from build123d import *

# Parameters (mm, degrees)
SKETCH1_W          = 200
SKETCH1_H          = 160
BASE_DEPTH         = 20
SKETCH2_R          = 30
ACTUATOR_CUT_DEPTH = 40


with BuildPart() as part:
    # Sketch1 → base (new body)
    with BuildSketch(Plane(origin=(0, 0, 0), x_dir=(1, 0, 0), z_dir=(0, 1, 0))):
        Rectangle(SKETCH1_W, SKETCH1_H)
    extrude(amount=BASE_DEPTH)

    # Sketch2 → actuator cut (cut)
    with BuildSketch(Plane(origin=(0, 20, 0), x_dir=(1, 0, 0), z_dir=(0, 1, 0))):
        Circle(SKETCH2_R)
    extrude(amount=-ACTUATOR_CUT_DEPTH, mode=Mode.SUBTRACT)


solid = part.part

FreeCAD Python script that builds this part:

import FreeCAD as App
import Part
import Sketcher

V = App.Vector
Q = App.Units.Quantity


def add_polygon(sketch, points):
    """Adds a closed chain of lines whose ends are joined by coincident constraints."""
    first, n = sketch.GeometryCount, len(points)
    for a, b in zip(points, points[1:] + points[:1]):
        sketch.addGeometry(Part.LineSegment(App.Vector(*a, 0), App.Vector(*b, 0)), False)
    for i in range(n):
        sketch.addConstraint(Sketcher.Constraint("Coincident", first + i, 2, first + (i + 1) % n, 1))

doc = App.newDocument("Part")
params = doc.addObject("Spreadsheet::Sheet", "Params")
for row, (alias, value) in enumerate([
    ("sketch1_width", "200 mm"),
    ("sketch1_height", "160 mm"),
    ("pad1_length", "20 mm"),
    ("sketch2_diameter", "60 mm"),
    ("pocket1_length", "40 mm"),
], start=1):
    params.set(f"A{row}", alias)
    params.set(f"B{row}", "=" + value)
    params.setAlias(f"B{row}", alias)

body = doc.addObject("PartDesign::Body", "Body")

sketch1 = doc.addObject("Sketcher::SketchObject", "Sketch")
body.addObject(sketch1)
sketch1.AttachmentSupport = (doc.XZ_Plane, [""])
sketch1.MapMode = "FlatFace"
add_polygon(sketch1, [(-100, -80), (-100, 80), (100, 80), (100, -80)])
sketch1.addConstraint(Sketcher.Constraint("Vertical", 0))
sketch1.addConstraint(Sketcher.Constraint("Horizontal", 1))
sketch1.addConstraint(Sketcher.Constraint("Vertical", 2))
sketch1.addConstraint(Sketcher.Constraint("Horizontal", 3))
sketch1.addConstraint(Sketcher.Constraint("Symmetric", 0, 2, 2, 2, -1, 1))
sketch1.addConstraint(Sketcher.Constraint("DistanceX", 1, 1, 1, 2, Q("200 mm")))
sketch1.addConstraint(Sketcher.Constraint("DistanceY", 0, 1, 0, 2, Q("160 mm")))
sketch1.setExpression("Constraints[9]", "Params.sketch1_width")
sketch1.setExpression("Constraints[10]", "Params.sketch1_height")
pad1 = doc.addObject("PartDesign::Pad", "Pad")
body.addObject(pad1)
pad1.Profile = sketch1
pad1.setExpression("Length", "Params.pad1_length")
pad1.Reversed = True

sketch2 = doc.addObject("Sketcher::SketchObject", "Sketch001")
body.addObject(sketch2)
sketch2.AttachmentSupport = (doc.XZ_Plane, [""])
sketch2.MapMode = "FlatFace"
sketch2.AttachmentOffset = App.Placement(V(0, 0, -20), App.Rotation())
sketch2.addGeometry(Part.Circle(V(0, 0, 0), V(0, 0, 1), 30), False)
sketch2.addConstraint(Sketcher.Constraint("Coincident", 0, 3, -1, 1))
sketch2.addConstraint(Sketcher.Constraint("Diameter", 0, Q("60 mm")))
sketch2.setExpression("Constraints[1]", "Params.sketch2_diameter")
pocket1 = doc.addObject("PartDesign::Pocket", "Pocket")
body.addObject(pocket1)
pocket1.Profile = sketch2
pocket1.setExpression("Length", "Params.pocket1_length")
pocket1.Reversed = True

doc.recompute()
